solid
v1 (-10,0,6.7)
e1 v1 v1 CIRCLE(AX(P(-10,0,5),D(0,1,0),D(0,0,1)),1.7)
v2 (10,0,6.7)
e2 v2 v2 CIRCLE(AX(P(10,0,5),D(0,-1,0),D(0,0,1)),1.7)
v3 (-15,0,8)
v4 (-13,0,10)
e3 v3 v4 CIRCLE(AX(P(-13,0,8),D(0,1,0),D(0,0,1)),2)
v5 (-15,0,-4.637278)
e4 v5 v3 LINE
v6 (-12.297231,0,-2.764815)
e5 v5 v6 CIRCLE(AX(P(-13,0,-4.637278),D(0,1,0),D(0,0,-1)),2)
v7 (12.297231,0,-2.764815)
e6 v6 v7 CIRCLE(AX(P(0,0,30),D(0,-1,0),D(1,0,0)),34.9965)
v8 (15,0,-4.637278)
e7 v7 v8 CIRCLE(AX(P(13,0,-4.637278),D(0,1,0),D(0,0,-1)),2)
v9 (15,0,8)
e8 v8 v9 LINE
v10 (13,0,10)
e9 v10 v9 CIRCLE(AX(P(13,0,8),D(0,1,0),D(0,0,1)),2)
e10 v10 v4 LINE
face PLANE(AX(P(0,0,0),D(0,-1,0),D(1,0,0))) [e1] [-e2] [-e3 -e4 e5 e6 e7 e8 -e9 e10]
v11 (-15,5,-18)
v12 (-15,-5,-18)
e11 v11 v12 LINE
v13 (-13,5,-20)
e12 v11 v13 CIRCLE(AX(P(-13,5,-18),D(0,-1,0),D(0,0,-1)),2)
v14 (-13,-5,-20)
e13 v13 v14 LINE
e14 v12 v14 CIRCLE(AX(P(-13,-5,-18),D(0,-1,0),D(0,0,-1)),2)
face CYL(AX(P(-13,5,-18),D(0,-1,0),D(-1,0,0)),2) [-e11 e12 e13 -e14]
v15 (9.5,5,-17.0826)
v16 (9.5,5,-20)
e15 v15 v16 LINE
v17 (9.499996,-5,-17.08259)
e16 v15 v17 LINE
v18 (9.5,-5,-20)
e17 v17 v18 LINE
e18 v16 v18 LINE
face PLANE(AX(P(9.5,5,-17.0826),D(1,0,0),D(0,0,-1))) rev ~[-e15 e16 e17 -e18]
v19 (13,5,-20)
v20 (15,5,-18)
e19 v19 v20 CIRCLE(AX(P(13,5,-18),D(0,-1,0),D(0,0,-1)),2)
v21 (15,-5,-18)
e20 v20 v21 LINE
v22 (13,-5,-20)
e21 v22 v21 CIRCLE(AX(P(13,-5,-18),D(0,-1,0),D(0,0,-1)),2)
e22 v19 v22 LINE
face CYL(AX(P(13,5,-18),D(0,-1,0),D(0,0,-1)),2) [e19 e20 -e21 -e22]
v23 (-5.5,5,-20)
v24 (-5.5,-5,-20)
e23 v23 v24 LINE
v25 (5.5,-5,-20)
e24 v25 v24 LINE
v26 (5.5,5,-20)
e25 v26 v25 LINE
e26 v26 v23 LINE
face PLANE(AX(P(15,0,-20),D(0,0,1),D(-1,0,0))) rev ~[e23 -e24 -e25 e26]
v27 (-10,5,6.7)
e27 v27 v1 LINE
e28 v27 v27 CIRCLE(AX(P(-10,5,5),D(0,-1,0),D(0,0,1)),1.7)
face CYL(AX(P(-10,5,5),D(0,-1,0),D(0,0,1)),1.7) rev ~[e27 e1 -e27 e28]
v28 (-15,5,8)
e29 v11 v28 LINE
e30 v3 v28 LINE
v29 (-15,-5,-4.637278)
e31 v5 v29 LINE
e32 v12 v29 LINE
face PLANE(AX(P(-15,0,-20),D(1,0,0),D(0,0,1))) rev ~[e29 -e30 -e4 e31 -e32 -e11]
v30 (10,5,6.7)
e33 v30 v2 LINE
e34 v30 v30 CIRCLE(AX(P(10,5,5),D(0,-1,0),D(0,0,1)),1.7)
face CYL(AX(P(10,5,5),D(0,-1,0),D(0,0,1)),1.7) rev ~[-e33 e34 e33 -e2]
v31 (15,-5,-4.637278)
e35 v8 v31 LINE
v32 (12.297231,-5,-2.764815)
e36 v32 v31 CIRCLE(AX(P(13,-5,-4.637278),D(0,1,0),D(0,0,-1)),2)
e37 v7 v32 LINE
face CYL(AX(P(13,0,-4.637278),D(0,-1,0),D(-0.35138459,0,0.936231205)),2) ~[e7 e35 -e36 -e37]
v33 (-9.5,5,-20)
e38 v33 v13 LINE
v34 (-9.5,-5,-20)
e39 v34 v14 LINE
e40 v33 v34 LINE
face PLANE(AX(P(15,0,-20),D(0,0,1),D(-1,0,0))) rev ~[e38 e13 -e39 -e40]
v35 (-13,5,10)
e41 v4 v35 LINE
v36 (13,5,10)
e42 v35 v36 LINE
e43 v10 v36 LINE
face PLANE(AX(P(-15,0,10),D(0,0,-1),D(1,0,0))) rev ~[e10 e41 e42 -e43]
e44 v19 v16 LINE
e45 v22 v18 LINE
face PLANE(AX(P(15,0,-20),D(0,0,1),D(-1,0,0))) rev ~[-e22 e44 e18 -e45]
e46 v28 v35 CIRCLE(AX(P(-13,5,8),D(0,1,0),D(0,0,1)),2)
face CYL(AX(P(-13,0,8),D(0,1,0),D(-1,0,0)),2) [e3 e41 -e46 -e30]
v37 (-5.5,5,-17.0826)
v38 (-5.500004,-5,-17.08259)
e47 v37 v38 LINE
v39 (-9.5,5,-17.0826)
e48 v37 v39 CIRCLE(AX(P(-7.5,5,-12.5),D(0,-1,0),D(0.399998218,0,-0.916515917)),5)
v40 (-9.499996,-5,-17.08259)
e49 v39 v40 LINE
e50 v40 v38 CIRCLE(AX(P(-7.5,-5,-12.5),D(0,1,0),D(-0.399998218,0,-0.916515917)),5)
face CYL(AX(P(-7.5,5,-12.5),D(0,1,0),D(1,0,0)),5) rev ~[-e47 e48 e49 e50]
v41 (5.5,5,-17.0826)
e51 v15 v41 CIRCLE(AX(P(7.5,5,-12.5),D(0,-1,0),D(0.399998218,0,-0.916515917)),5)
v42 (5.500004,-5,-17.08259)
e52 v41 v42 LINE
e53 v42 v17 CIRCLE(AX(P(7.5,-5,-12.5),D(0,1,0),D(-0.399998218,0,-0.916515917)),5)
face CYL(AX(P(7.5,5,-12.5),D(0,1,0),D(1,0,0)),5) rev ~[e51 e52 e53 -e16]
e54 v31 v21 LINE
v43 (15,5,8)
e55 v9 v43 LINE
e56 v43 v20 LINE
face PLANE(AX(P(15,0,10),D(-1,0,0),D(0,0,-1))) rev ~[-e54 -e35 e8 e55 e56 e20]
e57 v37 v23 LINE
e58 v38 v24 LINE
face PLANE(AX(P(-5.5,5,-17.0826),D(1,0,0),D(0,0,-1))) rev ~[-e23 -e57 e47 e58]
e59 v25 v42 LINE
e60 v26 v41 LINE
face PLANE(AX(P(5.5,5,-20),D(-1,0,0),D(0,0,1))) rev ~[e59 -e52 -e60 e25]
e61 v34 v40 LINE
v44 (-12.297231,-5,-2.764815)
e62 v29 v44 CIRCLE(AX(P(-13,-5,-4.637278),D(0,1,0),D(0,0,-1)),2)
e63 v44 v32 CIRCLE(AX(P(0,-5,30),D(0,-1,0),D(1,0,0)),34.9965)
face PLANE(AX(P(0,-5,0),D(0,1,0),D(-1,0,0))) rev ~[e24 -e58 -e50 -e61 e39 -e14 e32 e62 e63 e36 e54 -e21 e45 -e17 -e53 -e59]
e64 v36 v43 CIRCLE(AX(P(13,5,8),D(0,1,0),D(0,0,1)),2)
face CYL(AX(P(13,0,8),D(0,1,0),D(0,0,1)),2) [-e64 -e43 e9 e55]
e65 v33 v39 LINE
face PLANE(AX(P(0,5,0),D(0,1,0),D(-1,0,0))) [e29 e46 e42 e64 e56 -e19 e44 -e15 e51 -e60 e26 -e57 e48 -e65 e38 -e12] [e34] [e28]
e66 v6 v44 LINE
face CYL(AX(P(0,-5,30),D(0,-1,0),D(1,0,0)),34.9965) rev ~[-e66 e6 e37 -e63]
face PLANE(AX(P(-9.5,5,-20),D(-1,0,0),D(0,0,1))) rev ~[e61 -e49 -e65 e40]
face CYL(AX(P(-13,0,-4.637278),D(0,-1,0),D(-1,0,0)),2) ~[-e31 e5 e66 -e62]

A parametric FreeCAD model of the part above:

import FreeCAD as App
import Part
import Sketcher
from FreeCAD import Vector
Q = App.Units.Quantity


def edges_at(feature, points):
    """Names of the edges that pass closest to the given points."""
    edges = feature.Shape.Edges
    near = lambda p: min(range(len(edges)), key=lambda i: edges[i].distToShape(Part.Vertex(*p))[0])
    return sorted({f"Edge{near(p) + 1}" for p in points})

doc = App.newDocument("Part")
body = doc.addObject("PartDesign::Body", "Body")

# Sketch on XZ plane
sketch1 = body.newObject("Sketcher::SketchObject", "Sketch")
sketch1.AttachmentSupport = (doc.getObject("XZ_Plane"), [""])
sketch1.MapMode = "FlatFace"
sketch1.addGeometry(Part.LineSegment(Vector(-15, -20, 0), Vector(-15, 10, 0)), False)
sketch1.addGeometry(Part.LineSegment(Vector(-15, 10, 0), Vector(15, 10, 0)), False)
sketch1.addGeometry(Part.LineSegment(Vector(15, 10, 0), Vector(15, -20, 0)), False)
sketch1.addGeometry(Part.LineSegment(Vector(15, -20, 0), Vector(-15, -20, 0)), False)
sketch1.addConstraint(Sketcher.Constraint("Coincident", 0, 2, 1, 1))
sketch1.addConstraint(Sketcher.Constraint("Coincident", 1, 2, 2, 1))
sketch1.addConstraint(Sketcher.Constraint("Coincident", 2, 2, 3, 1))
sketch1.addConstraint(Sketcher.Constraint("Coincident", 3, 2, 0, 1))
sketch1.addConstraint(Sketcher.Constraint("Vertical", 0))
sketch1.addConstraint(Sketcher.Constraint("Horizontal", 1))
sketch1.addConstraint(Sketcher.Constraint("Vertical", 2))
sketch1.addConstraint(Sketcher.Constraint("Horizontal", 3))
sketch1.addConstraint(Sketcher.Constraint("Equal", 3, 0))
sketch1.addConstraint(Sketcher.Constraint("DistanceX", 1, 1, 1, 2, Q("30 mm")))
sketch1.addConstraint(Sketcher.Constraint("DistanceY", -1, 1, 0, 2, Q("10 mm")))
sketch1.addConstraint(Sketcher.Constraint("DistanceX", 0, 2, -1, 1, Q("15 mm")))
pad1 = body.newObject("PartDesign::Pad", "Pad")
pad1.Profile = sketch1
pad1.Length = 10
pad1.Midplane = True

# Sketch on XZ plane
sketch2 = body.newObject("Sketcher::SketchObject", "Sketch001")
sketch2.AttachmentSupport = (doc.getObject("XZ_Plane"), [""])
sketch2.MapMode = "FlatFace"
sketch2.AttachmentOffset = App.Placement(Vector(0, 0, -5), App.Rotation())
sketch2.addGeometry(Part.Circle(Vector(-10, 5, 0), Vector(0, 0, 1), 1.7), False)
sketch2.addGeometry(Part.Circle(Vector(10, 5, 0), Vector(0, 0, 1), 1.7), False)
sketch2.addConstraint(Sketcher.Constraint("Equal", 0, 1))
sketch2.addConstraint(Sketcher.Constraint("Symmetric", 0, 3, 1, 3, -2))
sketch2.addConstraint(Sketcher.Constraint("Diameter", 0, Q("3.4 mm")))
sketch2.addConstraint(Sketcher.Constraint("DistanceX", 0, 3, -1, 1, Q("10 mm")))
sketch2.addConstraint(Sketcher.Constraint("DistanceY", -1, 1, 0, 3, Q("5 mm")))
doc.recompute()
hole = body.newObject("PartDesign::Hole", "Hole")
hole.Profile = sketch2
hole.ThreadType = "None"
hole.Diameter = 3.4
hole.DepthType = "ThroughAll"
hole.Reversed = True

# Sketch on XZ plane
sketch3 = body.newObject("Sketcher::SketchObject", "Sketch002")
sketch3.AttachmentSupport = (doc.getObject("XZ_Plane"), [""])
sketch3.MapMode = "FlatFace"
sketch3.AttachmentOffset = App.Placement(Vector(0, 0, 5), App.Rotation())
sketch3.addGeometry(Part.Circle(Vector(0, 30, 0), Vector(0, 0, 1), 35), False)
sketch3.addGeometry(Part.Circle(Vector(-10, 5, 0), Vector(0, 0, 1), 1.7), False)
sketch3.addConstraint(Sketcher.Constraint("PointOnObject", 0, 3, -2))
sketch3.addConstraint(Sketcher.Constraint("Diameter", 0, Q("69.993 mm")))
sketch3.addConstraint(Sketcher.Constraint("DistanceY", 1, 3, 0, 3, Q("25 mm")))
sketch3.addConstraint(Sketcher.Constraint("Diameter", 1, Q("3.4 mm")))
sketch3.addConstraint(Sketcher.Constraint("DistanceY", -1, 1, 0, 3, Q("30 mm")))
sketch3.addConstraint(Sketcher.Constraint("DistanceX", 1, 3, -1, 1, Q("10 mm")))
pocket1 = body.newObject("PartDesign::Pocket", "Pocket")
pocket1.Profile = sketch3
pocket1.Length = 5
doc.recompute()

fillet = body.newObject("PartDesign::Fillet", "Fillet")
fillet.Base = (pocket1, edges_at(pocket1, [(15, -2.5, -1.619), (-15, -2.5, -1.619)]))
fillet.Radius = 2
doc.recompute()

fillet2 = body.newObject("PartDesign::Fillet", "Fillet001")
fillet2.Base = (fillet, edges_at(fillet, [(15, 2.5, 10), (-15, 2.5, 10)]))
fillet2.Radius = 2
doc.recompute()

fillet3 = body.newObject("PartDesign::Fillet", "Fillet002")
fillet3.Base = (fillet2, edges_at(fillet2, [(15, 0, -20), (-15, 0, -20)]))
fillet3.Radius = 2

# Sketch on XZ plane
sketch4 = body.newObject("Sketcher::SketchObject", "Sketch003")
sketch4.AttachmentSupport = (doc.getObject("XZ_Plane"), [""])
sketch4.MapMode = "FlatFace"
sketch4.AttachmentOffset = App.Placement(Vector(0, 0, -5), App.Rotation())
sketch4.addGeometry(Part.Circle(Vector(-8, -12, 0), Vector(0, 0, 1), 5), False)
sketch4.addGeometry(Part.Circle(Vector(8, -12, 0), Vector(0, 0, 1), 5), False)
sketch4.addConstraint(Sketcher.Constraint("Equal", 0, 1))
sketch4.addConstraint(Sketcher.Constraint("Symmetric", 0, 3, 1, 3, -2))
sketch4.addConstraint(Sketcher.Constraint("Diameter", 0, Q("10 mm")))
sketch4.addConstraint(Sketcher.Constraint("DistanceX", 0, 3, -1, 1, Q("7.5 mm")))
sketch4.addConstraint(Sketcher.Constraint("DistanceY", 0, 3, -1, 1, Q("12.5 mm")))
pocket2 = body.newObject("PartDesign::Pocket", "Pocket001")
pocket2.Profile = sketch4
pocket2.Type = "ThroughAll"
pocket2.Reversed = True

# Sketch on XZ plane
sketch5 = body.newObject("Sketcher::SketchObject", "Sketch004")
sketch5.AttachmentSupport = (doc.getObject("XZ_Plane"), [""])
sketch5.MapMode = "FlatFace"
sketch5.AttachmentOffset = App.Placement(Vector(0, 0, -5), App.Rotation())
sketch5.addGeometry(Part.LineSegment(Vector(9.5, -20, 0), Vector(5.5, -20, 0)), False)
sketch5.addGeometry(Part.LineSegment(Vector(5.5, -20, 0), Vector(5.5, -17.1, 0)), False)
sketch5.addGeometry(Part.LineSegment(Vector(5.5, -17.1, 0), Vector(9.5, -17.1, 0)), False)
sketch5.addGeometry(Part.LineSegment(Vector(9.5, -17.1, 0), Vector(9.5, -20, 0)), False)
sketch5.addGeometry(Part.LineSegment(Vector(-9.5, -17.1, 0), Vector(-5.5, -17.1, 0)), False)
sketch5.addGeometry(Part.LineSegment(Vector(-5.5, -17.1, 0), Vector(-5.5, -20, 0)), False)
sketch5.addGeometry(Part.LineSegment(Vector(-5.5, -20, 0), Vector(-9.5, -20, 0)), False)
sketch5.addGeometry(Part.LineSegment(Vector(-9.5, -20, 0), Vector(-9.5, -17.1, 0)), False)
sketch5.addConstraint(Sketcher.Constraint("Coincident", 0, 2, 1, 1))
sketch5.addConstraint(Sketcher.Constraint("Coincident", 1, 2, 2, 1))
sketch5.addConstraint(Sketcher.Constraint("Coincident", 2, 2, 3, 1))
sketch5.addConstraint(Sketcher.Constraint("Coincident", 3, 2, 0, 1))
sketch5.addConstraint(Sketcher.Constraint("Coincident", 4, 2, 5, 1))
sketch5.addConstraint(Sketcher.Constraint("Coincident", 5, 2, 6, 1))
sketch5.addConstraint(Sketcher.Constraint("Coincident", 6, 2, 7, 1))
sketch5.addConstraint(Sketcher.Constraint("Coincident", 7, 2, 4, 1))
sketch5.addConstraint(Sketcher.Constraint("Horizontal", 0))
sketch5.addConstraint(Sketcher.Constraint("Vertical", 1))
sketch5.addConstraint(Sketcher.Constraint("Horizontal", 2))
sketch5.addConstraint(Sketcher.Constraint("Vertical", 3))
sketch5.addConstraint(Sketcher.Constraint("Horizontal", 4))
sketch5.addConstraint(Sketcher.Constraint("Vertical", 5))
sketch5.addConstraint(Sketcher.Constraint("Horizontal", 6))
sketch5.addConstraint(Sketcher.Constraint("Vertical", 7))
sketch5.addConstraint(Sketcher.Constraint("Symmetric", 1, 2, 4, 2, -2))
sketch5.addConstraint(Sketcher.Constraint("Symmetric", 3, 2, 6, 2, -2))
sketch5.addConstraint(Sketcher.Constraint("DistanceX", 0, 2, 0, 1, Q("4 mm")))
sketch5.addConstraint(Sketcher.Constraint("DistanceY", 0, 2, -1, 1, Q("20 mm")))
sketch5.addConstraint(Sketcher.Constraint("DistanceX", 4, 2, 1, 2, Q("11 mm")))
sketch5.addConstraint(Sketcher.Constraint("DistanceY", 1, 1, 1, 2, Q("2.9174 mm")))
pocket3 = body.newObject("PartDesign::Pocket", "Pocket002")
pocket3.Profile = sketch5
pocket3.Type = "ThroughAll"
pocket3.Reversed = True

doc.recompute()
